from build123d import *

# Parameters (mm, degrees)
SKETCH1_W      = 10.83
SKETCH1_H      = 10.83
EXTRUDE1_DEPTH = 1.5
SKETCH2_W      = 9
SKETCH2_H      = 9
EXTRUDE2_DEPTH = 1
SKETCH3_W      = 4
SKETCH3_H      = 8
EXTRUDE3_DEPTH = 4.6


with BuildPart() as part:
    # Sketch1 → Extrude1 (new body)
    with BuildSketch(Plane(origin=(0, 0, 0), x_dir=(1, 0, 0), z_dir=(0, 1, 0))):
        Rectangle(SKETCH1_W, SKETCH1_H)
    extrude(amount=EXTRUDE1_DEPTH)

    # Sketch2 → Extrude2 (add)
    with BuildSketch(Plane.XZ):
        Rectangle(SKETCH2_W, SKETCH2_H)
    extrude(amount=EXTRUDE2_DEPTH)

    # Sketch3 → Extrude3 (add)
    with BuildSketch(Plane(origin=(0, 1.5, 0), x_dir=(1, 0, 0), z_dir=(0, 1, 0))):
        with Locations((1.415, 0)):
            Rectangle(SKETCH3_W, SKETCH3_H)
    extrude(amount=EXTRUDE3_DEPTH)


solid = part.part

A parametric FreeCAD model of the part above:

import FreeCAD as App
import Part
import Sketcher

doc = App.newDocument("Part")
params = doc.addObject("Spreadsheet::Sheet", "Params")
for row, (alias, value) in enumerate([
    ("sketch1_width", "10.83 mm"),
    ("pad1_length", "1.5 mm"),
    ("sketch2_width", "9 mm"),
    ("pad2_length", "1 mm"),
    ("sketch3_width", "4 mm"),
    ("sketch3_height", "8 mm"),
    ("pad3_length", "4.6 mm"),
], start=1):
    params.set(f"A{row}", alias)
    params.set(f"B{row}", "=" + value)
    params.setAlias(f"B{row}", alias)

body = doc.addObject("PartDesign::Body", "Body")

# Sketch on XZ plane
sketch1 = body.newObject("Sketcher::SketchObject", "Sketch")
sketch1.AttachmentSupport = (doc.getObject("XZ_Plane"), [""])
sketch1.MapMode = "FlatFace"
sketch1.addGeometry([
    Part.LineSegment(App.Vector(-5.415, -5.415, 0), App.Vector(-5.415, 5.415, 0)),
    Part.LineSegment(App.Vector(-5.415, 5.415, 0), App.Vector(5.415, 5.415, 0)),
    Part.LineSegment(App.Vector(5.415, 5.415, 0), App.Vector(5.415, -5.415, 0)),
    Part.LineSegment(App.Vector(5.415, -5.415, 0), App.Vector(-5.415, -5.415, 0)),
], False)
sketch1.addConstraint([
    Sketcher.Constraint("Coincident", 0, 2, 1, 1),
    Sketcher.Constraint("Coincident", 1, 2, 2, 1),
    Sketcher.Constraint("Coincident", 2, 2, 3, 1),
    Sketcher.Constraint("Coincident", 3, 2, 0, 1),
    Sketcher.Constraint("Vertical", 0),
    Sketcher.Constraint("Horizontal", 1),
    Sketcher.Constraint("Vertical", 2),
    Sketcher.Constraint("Horizontal", 3),
    Sketcher.Constraint("Symmetric", 0, 2, 2, 2, -1, 1),
    Sketcher.Constraint("Equal", 3, 0),
    Sketcher.Constraint("DistanceX", 1, 1, 1, 2, 10.83),
])
sketch1.setExpression("Constraints[10]", "Params.sketch1_width")
pad1 = body.newObject("PartDesign::Pad", "Pad")
pad1.Profile = sketch1
pad1.setExpression("Length", "Params.pad1_length")
pad1.Reversed = True

# Sketch on XZ plane
sketch2 = body.newObject("Sketcher::SketchObject", "Sketch001")
sketch2.AttachmentSupport = (doc.getObject("XZ_Plane"), [""])
sketch2.MapMode = "FlatFace"
sketch2.addGeometry([
    Part.LineSegment(App.Vector(-4.5, 4.5, 0), App.Vector(-4.5, -4.5, 0)),
    Part.LineSegment(App.Vector(-4.5, -4.5, 0), App.Vector(4.5, -4.5, 0)),
    Part.LineSegment(App.Vector(4.5, -4.5, 0), App.Vector(4.5, 4.5, 0)),
    Part.LineSegment(App.Vector(4.5, 4.5, 0), App.Vector(-4.5, 4.5, 0)),
], False)
sketch2.addConstraint([
    Sketcher.Constraint("Coincident", 0, 2, 1, 1),
    Sketcher.Constraint("Coincident", 1, 2, 2, 1),
    Sketcher.Constraint("Coincident", 2, 2, 3, 1),
    Sketcher.Constraint("Coincident", 3, 2, 0, 1),
    Sketcher.Constraint("Vertical", 0),
    Sketcher.Constraint("Horizontal", 1),
    Sketcher.Constraint("Vertical", 2),
    Sketcher.Constraint("Horizontal", 3),
    Sketcher.Constraint("Symmetric", 0, 2, 2, 2, -1, 1),
    Sketcher.Constraint("Equal", 3, 0),
    Sketcher.Constraint("DistanceX", 1, 1, 1, 2, 9.0),
])
sketch2.setExpression("Constraints[10]", "Params.sketch2_width")
pad2 = body.newObject("PartDesign::Pad", "Pad001")
pad2.Profile = sketch2
pad2.setExpression("Length", "Params.pad2_length")

# Sketch on XZ plane
sketch3 = body.newObject("Sketcher::SketchObject", "Sketch002")
sketch3.AttachmentSupport = (doc.getObject("XZ_Plane"), [""])
sketch3.MapMode = "FlatFace"
sketch3.AttachmentOffset = App.Placement(App.Vector(0, 0, -1.5), App.Rotation())
sketch3.addGeometry([
    Part.LineSegment(App.Vector(-0.585, -4, 0), App.Vector(-0.585, 4, 0)),
    Part.LineSegment(App.Vector(-0.585, 4, 0), App.Vector(3.415, 4, 0)),
    Part.LineSegment(App.Vector(3.415, 4, 0), App.Vector(3.415, -4, 0)),
    Part.LineSegment(App.Vector(3.415, -4, 0), App.Vector(-0.585, -4, 0)),
], False)
sketch3.addConstraint([
    Sketcher.Constraint("Coincident", 0, 2, 1, 1),
    Sketcher.Constraint("Coincident", 1, 2, 2, 1),
    Sketcher.Constraint("Coincident", 2, 2, 3, 1),
    Sketcher.Constraint("Coincident", 3, 2, 0, 1),
    Sketcher.Constraint("Vertical", 0),
    Sketcher.Constraint("Horizontal", 1),
    Sketcher.Constraint("Vertical", 2),
    Sketcher.Constraint("Horizontal", 3),
    Sketcher.Constraint("DistanceX", 1, 1, 1, 2, 4.0),
    Sketcher.Constraint("DistanceY", 0, 1, 0, 2, 8.0),
    Sketcher.Constraint("DistanceY", -1, 1, 0, 2, 4.0),
    Sketcher.Constraint("DistanceX", 0, 2, -1, 1, 0.585),
])
sketch3.setExpression("Constraints[8]", "Params.sketch3_width")
sketch3.setExpression("Constraints[9]", "Params.sketch3_height")
pad3 = body.newObject("PartDesign::Pad", "Pad002")
pad3.Profile = sketch3
pad3.setExpression("Length", "Params.pad3_length")
pad3.Reversed = True

doc.recompute()
